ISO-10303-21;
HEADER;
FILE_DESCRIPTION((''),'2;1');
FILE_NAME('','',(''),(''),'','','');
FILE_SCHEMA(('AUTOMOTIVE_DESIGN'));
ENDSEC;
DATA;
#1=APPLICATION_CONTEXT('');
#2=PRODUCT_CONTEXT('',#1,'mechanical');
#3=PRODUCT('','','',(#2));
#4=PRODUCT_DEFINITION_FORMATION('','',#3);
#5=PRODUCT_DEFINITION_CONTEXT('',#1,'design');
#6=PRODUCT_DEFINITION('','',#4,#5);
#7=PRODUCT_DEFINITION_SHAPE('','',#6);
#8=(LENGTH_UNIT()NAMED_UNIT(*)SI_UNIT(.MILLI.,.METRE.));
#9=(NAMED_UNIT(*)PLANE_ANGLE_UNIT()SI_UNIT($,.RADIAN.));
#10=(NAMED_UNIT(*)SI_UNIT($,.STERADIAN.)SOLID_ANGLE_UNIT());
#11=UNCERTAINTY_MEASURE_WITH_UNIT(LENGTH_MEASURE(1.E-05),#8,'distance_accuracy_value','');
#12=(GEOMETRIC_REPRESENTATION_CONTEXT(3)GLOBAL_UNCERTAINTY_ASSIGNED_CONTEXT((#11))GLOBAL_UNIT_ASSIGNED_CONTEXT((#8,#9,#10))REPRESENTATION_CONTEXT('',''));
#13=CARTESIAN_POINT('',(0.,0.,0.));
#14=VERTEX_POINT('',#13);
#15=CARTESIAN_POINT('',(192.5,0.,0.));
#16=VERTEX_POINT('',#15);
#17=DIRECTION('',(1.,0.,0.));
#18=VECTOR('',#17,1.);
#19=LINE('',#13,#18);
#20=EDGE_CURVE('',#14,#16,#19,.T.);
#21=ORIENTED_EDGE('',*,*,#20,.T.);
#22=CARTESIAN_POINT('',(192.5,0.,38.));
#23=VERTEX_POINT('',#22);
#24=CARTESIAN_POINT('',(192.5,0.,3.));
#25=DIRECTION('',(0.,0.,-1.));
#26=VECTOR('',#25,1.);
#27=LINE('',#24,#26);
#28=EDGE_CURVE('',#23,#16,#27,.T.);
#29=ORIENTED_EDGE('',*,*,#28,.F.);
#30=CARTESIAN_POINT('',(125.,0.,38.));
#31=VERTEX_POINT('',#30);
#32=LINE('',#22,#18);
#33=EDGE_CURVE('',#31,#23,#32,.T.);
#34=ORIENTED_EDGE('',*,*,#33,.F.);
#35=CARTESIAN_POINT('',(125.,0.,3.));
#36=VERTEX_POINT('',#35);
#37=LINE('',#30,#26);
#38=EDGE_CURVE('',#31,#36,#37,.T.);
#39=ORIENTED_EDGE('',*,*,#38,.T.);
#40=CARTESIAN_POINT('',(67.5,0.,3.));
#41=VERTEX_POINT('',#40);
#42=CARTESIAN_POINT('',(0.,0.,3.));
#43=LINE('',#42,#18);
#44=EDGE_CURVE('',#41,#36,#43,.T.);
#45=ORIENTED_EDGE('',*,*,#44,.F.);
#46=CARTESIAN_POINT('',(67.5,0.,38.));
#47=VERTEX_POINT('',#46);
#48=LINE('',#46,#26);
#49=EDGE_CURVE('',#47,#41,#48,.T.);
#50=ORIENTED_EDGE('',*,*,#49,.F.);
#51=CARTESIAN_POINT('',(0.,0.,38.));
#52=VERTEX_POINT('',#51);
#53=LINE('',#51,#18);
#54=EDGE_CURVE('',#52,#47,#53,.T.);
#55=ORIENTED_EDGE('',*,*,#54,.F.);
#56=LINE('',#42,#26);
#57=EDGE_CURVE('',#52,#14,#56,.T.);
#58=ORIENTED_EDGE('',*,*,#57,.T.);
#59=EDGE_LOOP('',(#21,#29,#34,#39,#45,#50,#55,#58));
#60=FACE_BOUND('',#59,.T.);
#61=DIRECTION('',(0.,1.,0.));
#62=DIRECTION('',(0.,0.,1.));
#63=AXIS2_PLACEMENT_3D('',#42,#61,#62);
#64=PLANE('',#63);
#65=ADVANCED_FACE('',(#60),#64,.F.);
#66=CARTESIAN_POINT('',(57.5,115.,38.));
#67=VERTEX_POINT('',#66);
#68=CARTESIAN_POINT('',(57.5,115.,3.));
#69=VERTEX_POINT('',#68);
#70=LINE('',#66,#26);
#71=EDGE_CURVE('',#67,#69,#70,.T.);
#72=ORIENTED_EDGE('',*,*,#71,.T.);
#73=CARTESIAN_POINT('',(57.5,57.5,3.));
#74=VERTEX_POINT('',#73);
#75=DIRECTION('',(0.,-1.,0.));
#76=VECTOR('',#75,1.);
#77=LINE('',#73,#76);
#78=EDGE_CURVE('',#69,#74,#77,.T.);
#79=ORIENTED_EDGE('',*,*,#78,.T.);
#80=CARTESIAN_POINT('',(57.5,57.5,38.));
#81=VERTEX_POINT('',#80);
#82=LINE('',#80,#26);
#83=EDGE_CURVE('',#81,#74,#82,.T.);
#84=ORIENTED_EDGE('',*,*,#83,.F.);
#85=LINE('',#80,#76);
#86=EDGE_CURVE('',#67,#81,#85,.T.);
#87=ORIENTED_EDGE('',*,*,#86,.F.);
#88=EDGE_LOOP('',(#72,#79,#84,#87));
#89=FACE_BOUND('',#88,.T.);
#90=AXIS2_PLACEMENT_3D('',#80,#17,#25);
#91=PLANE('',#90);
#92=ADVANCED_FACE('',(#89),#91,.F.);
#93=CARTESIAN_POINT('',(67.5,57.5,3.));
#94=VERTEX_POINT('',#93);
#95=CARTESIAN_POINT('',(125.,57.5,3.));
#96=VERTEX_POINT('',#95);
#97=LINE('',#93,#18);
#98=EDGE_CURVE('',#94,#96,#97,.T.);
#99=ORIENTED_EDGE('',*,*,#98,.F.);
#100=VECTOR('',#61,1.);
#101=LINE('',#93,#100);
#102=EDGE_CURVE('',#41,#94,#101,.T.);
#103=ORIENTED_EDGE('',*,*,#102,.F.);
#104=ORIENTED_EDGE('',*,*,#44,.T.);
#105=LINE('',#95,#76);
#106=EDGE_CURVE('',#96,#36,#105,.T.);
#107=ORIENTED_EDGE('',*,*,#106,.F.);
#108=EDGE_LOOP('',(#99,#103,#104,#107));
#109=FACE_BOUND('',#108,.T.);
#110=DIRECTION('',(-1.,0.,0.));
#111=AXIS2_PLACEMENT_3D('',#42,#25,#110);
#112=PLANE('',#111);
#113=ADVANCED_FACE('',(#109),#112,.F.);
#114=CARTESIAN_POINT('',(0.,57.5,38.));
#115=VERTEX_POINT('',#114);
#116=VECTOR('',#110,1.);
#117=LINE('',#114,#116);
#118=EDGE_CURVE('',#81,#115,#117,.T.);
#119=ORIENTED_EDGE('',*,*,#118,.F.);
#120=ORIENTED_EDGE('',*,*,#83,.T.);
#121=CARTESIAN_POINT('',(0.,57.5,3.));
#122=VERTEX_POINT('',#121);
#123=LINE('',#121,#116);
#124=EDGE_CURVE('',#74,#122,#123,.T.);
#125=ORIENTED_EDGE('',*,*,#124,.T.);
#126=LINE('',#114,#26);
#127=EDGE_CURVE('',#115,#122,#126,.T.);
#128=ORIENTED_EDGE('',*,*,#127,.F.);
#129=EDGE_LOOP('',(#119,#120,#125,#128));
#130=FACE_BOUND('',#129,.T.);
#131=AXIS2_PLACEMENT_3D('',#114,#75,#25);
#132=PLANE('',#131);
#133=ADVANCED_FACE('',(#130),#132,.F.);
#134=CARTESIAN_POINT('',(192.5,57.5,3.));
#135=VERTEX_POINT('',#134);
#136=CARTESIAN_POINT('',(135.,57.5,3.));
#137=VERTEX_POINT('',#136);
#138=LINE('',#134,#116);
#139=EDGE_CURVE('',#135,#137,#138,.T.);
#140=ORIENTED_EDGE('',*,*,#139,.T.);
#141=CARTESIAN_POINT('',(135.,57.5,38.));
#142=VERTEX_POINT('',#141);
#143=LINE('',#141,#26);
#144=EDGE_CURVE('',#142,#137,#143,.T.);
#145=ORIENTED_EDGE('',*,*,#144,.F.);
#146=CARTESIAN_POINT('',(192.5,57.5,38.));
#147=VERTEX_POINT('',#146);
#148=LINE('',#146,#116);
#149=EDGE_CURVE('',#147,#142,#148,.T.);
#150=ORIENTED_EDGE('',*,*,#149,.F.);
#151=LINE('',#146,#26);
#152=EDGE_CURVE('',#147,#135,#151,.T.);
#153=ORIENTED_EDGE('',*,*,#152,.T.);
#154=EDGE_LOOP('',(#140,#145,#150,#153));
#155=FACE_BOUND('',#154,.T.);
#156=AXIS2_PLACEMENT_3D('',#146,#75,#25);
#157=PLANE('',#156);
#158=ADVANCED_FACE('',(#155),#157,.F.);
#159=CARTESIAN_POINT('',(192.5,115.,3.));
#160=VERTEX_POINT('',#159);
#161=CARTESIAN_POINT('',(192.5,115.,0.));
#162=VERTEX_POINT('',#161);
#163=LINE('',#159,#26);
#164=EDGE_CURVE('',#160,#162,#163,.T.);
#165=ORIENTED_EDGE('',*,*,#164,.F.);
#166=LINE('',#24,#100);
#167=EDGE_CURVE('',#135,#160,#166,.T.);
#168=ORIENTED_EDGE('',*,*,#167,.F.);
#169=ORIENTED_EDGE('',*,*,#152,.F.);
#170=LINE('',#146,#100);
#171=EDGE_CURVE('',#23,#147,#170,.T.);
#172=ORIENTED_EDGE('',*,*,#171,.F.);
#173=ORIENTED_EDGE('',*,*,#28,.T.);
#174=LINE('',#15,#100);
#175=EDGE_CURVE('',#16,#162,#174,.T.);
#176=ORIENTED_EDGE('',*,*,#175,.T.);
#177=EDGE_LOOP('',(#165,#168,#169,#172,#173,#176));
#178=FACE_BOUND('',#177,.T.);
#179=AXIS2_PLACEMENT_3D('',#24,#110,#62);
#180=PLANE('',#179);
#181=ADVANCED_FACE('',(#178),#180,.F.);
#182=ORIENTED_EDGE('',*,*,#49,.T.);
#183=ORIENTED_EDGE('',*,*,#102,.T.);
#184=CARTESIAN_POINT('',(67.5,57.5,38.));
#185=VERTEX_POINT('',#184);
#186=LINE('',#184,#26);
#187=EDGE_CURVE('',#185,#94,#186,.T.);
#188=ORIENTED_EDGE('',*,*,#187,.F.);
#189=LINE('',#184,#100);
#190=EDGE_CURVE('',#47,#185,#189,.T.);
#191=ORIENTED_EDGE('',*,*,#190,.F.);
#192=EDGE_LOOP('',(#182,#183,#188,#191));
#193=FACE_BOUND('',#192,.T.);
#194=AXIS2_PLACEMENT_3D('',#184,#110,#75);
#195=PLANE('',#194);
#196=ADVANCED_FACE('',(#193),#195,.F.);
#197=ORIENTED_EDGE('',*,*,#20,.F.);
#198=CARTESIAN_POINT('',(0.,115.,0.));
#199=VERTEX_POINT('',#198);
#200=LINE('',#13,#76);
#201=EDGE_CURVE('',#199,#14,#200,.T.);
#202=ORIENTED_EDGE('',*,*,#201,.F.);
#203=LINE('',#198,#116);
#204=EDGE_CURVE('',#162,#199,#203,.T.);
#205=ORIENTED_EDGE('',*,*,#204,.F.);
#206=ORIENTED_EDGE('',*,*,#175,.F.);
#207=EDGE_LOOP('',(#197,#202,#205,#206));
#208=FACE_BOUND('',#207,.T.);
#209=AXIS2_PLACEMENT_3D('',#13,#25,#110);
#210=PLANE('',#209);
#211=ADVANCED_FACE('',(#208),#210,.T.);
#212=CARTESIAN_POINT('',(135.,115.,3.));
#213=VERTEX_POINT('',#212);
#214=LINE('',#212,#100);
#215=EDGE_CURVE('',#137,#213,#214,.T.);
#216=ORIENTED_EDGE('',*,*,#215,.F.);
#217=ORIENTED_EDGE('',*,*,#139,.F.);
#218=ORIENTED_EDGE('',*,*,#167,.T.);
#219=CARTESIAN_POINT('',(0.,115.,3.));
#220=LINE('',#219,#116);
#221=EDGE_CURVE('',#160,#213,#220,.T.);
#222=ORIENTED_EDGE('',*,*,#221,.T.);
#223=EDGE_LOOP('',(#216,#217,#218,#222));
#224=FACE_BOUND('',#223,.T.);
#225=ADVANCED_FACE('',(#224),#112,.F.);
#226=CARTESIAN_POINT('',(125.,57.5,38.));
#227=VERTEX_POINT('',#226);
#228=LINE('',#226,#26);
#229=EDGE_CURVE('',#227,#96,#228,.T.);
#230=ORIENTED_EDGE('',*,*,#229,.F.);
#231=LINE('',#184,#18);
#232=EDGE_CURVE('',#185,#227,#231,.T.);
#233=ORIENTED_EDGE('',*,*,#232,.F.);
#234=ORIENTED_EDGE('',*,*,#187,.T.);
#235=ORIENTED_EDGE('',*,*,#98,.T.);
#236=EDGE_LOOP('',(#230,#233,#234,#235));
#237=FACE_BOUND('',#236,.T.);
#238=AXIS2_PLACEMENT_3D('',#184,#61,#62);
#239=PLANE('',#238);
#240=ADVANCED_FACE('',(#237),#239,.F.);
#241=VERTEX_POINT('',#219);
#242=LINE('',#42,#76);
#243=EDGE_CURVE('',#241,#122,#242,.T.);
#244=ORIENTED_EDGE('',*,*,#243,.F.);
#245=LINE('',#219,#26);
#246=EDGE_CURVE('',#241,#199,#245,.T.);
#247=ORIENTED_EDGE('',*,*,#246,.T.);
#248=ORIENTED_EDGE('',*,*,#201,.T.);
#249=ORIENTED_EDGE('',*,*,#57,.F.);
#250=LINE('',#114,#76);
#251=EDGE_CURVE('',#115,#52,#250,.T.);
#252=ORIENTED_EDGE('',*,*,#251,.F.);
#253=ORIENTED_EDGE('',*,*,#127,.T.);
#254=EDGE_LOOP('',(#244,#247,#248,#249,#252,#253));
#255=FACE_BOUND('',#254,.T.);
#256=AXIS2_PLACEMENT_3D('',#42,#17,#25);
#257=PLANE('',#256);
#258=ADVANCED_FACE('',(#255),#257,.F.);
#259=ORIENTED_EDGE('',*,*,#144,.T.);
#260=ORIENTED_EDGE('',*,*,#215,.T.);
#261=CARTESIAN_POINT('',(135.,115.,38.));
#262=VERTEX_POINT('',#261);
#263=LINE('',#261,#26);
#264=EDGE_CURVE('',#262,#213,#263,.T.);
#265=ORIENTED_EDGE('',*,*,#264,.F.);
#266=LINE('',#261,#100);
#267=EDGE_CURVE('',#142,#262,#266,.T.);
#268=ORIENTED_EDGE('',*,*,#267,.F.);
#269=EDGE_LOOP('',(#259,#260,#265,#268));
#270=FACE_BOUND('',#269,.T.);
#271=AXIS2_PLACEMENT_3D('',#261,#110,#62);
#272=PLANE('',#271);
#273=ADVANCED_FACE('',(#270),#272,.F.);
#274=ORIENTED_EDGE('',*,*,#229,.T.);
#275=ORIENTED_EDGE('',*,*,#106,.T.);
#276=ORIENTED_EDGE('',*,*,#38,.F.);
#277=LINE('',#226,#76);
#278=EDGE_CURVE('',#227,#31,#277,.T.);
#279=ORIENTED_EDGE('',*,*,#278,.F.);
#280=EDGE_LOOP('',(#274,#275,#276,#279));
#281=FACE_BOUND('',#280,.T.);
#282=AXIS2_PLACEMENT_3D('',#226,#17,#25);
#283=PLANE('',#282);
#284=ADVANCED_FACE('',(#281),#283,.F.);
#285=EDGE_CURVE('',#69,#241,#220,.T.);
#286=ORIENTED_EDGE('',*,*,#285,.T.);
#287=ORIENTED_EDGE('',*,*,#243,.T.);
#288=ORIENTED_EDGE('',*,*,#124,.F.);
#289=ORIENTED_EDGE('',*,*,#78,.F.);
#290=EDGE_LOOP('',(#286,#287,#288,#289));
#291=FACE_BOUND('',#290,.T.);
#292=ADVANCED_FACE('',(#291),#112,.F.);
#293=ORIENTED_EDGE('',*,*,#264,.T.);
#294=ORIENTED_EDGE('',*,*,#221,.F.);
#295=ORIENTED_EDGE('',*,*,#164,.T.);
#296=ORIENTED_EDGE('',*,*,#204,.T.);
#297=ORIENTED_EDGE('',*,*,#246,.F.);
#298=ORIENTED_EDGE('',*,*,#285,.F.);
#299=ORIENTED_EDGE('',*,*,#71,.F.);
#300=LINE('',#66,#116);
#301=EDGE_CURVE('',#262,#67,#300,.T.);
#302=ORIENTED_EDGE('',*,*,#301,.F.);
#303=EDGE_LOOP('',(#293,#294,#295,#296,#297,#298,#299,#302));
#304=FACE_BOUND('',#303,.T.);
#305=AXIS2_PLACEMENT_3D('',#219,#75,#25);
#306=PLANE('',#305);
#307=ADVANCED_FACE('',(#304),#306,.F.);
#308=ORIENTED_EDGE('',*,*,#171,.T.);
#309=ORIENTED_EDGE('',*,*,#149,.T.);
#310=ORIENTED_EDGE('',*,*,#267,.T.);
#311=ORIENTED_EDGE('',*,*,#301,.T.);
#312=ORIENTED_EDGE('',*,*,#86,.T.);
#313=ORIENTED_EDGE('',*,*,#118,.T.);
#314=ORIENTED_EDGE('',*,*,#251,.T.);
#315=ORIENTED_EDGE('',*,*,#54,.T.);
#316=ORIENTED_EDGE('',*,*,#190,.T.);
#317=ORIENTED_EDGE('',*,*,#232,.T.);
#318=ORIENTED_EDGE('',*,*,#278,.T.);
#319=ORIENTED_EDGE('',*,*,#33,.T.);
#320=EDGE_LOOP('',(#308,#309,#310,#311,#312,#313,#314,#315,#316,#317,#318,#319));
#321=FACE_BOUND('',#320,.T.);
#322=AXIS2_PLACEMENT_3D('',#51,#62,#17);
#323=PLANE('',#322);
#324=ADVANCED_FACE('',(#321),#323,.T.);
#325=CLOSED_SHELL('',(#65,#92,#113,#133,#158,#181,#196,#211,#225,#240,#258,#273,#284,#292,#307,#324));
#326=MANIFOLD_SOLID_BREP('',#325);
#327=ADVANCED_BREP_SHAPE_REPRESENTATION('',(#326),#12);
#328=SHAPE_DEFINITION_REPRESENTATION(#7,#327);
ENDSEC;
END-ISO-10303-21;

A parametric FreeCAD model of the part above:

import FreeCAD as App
import Part
import Sketcher

V = App.Vector
Q = App.Units.Quantity

doc = App.newDocument("Part")
params = doc.addObject("Spreadsheet::Sheet", "Params")
for row, (alias, value) in enumerate([
    ("sketch1_height", "115 mm"),
    ("sketch1_width", "192.5 mm"),
    ("pad1_length", "3 mm"),
    ("sketch2_width", "67.5 mm"),
    ("sketch2_width2", "57.5 mm"),
    ("pad2_length", "35 mm"),
], start=1):
    params.set(f"A{row}", alias)
    params.set(f"B{row}", "=" + value)
    params.setAlias(f"B{row}", alias)

body = doc.addObject("PartDesign::Body", "Body")

# Sketch on XY plane
sketch1 = doc.addObject("Sketcher::SketchObject", "Sketch")
body.addObject(sketch1)
sketch1.AttachmentSupport = (doc.XY_Plane, [""])
sketch1.MapMode = "FlatFace"
sketch1.addGeometry([
    Part.LineSegment(V(0, 115, 0), V(0, 0, 0)),
    Part.LineSegment(V(0, 0, 0), V(192, 0, 0)),
    Part.LineSegment(V(192, 0, 0), V(192, 115, 0)),
    Part.LineSegment(V(192, 115, 0), V(0, 115, 0)),
], False)
sketch1.addConstraint([
    Sketcher.Constraint("Coincident", 0, 2, 1, 1),
    Sketcher.Constraint("Coincident", 1, 2, 2, 1),
    Sketcher.Constraint("Coincident", 2, 2, 3, 1),
    Sketcher.Constraint("Coincident", 3, 2, 0, 1),
    Sketcher.Constraint("Vertical", 0),
    Sketcher.Constraint("Horizontal", 1),
    Sketcher.Constraint("Vertical", 2),
    Sketcher.Constraint("Horizontal", 3),
    Sketcher.Constraint("Coincident", 0, 2, -1, 1),
    Sketcher.Constraint("DistanceY", 0, 2, 0, 1, Q("115 mm")),
    Sketcher.Constraint("DistanceX", 1, 1, 1, 2, Q("192.5 mm")),
])
sketch1.setExpression("Constraints[9]", "Params.sketch1_height")
sketch1.setExpression("Constraints[10]", "Params.sketch1_width")
pad1 = doc.addObject("PartDesign::Pad", "Pad")
body.addObject(pad1)
pad1.Profile = sketch1
pad1.setExpression("Length", "Params.pad1_length")

# Sketch on XY plane
sketch2 = doc.addObject("Sketcher::SketchObject", "Sketch001")
body.addObject(sketch2)
sketch2.AttachmentSupport = (doc.XY_Plane, [""])
sketch2.MapMode = "FlatFace"
sketch2.AttachmentOffset = App.Placement(V(0, 0, 3), App.Rotation())
sketch2.addGeometry([
    Part.LineSegment(V(0, 58, 0), V(0, 0, 0)),  # 0
    Part.LineSegment(V(0, 0, 0), V(68, 0, 0)),  # 1
    Part.LineSegment(V(68, 0, 0), V(68, 58, 0)),  # 2
    Part.LineSegment(V(68, 58, 0), V(125, 58, 0)),  # 3
    Part.LineSegment(V(125, 58, 0), V(125, 0, 0)),  # 4
    Part.LineSegment(V(125, 0, 0), V(192, 0, 0)),  # 5
    Part.LineSegment(V(192, 0, 0), V(192, 58, 0)),  # 6
    Part.LineSegment(V(192, 58, 0), V(135, 58, 0)),  # 7
    Part.LineSegment(V(135, 58, 0), V(135, 115, 0)),  # 8
    Part.LineSegment(V(135, 115, 0), V(58, 115, 0)),  # 9
    Part.LineSegment(V(58, 115, 0), V(58, 58, 0)),  # 10
    Part.LineSegment(V(58, 58, 0), V(0, 58, 0)),  # 11
], False)
sketch2.addConstraint([
    Sketcher.Constraint("Coincident", 0, 2, 1, 1),
    Sketcher.Constraint("Coincident", 1, 2, 2, 1),
    Sketcher.Constraint("Coincident", 2, 2, 3, 1),
    Sketcher.Constraint("Coincident", 3, 2, 4, 1),
    Sketcher.Constraint("Coincident", 4, 2, 5, 1),
    Sketcher.Constraint("Coincident", 5, 2, 6, 1),
    Sketcher.Constraint("Coincident", 6, 2, 7, 1),
    Sketcher.Constraint("Coincident", 7, 2, 8, 1),
    Sketcher.Constraint("Coincident", 8, 2, 9, 1),
    Sketcher.Constraint("Coincident", 9, 2, 10, 1),
    Sketcher.Constraint("Coincident", 10, 2, 11, 1),
    Sketcher.Constraint("Coincident", 11, 2, 0, 1),
    Sketcher.Constraint("Vertical", 0),
    Sketcher.Constraint("Horizontal", 1),
    Sketcher.Constraint("Vertical", 2),
    Sketcher.Constraint("Horizontal", 3),
    Sketcher.Constraint("Vertical", 4),
    Sketcher.Constraint("Horizontal", 5),
    Sketcher.Constraint("Vertical", 6),
    Sketcher.Constraint("Horizontal", 7),
    Sketcher.Constraint("Vertical", 8),
    Sketcher.Constraint("Horizontal", 9),
    Sketcher.Constraint("Vertical", 10),
    Sketcher.Constraint("Horizontal", 11),
    Sketcher.Constraint("Coincident", 0, 2, -1, 1),
    Sketcher.Constraint("PointOnObject", 4, 2, -1),
    Sketcher.Constraint("Horizontal", 3, 2, 6, 2),
    Sketcher.Constraint("Horizontal", 7, 2, 10, 2),
    Sketcher.Constraint("Equal", 1, 5),
    Sketcher.Constraint("Equal", 3, 7),
    Sketcher.Constraint("Equal", 7, 11),
    Sketcher.Constraint("Equal", 11, 0),
    Sketcher.Constraint("Equal", 6, 8),
    Sketcher.Constraint("DistanceX", 1, 1, 1, 2, Q("67.5 mm")),
    Sketcher.Constraint("DistanceX", 3, 1, 3, 2, Q("57.5 mm")),
])
sketch2.setExpression("Constraints[33]", "Params.sketch2_width")
sketch2.setExpression("Constraints[34]", "Params.sketch2_width2")
pad2 = doc.addObject("PartDesign::Pad", "Pad001")
body.addObject(pad2)
pad2.Profile = sketch2
pad2.setExpression("Length", "Params.pad2_length")

doc.recompute()
